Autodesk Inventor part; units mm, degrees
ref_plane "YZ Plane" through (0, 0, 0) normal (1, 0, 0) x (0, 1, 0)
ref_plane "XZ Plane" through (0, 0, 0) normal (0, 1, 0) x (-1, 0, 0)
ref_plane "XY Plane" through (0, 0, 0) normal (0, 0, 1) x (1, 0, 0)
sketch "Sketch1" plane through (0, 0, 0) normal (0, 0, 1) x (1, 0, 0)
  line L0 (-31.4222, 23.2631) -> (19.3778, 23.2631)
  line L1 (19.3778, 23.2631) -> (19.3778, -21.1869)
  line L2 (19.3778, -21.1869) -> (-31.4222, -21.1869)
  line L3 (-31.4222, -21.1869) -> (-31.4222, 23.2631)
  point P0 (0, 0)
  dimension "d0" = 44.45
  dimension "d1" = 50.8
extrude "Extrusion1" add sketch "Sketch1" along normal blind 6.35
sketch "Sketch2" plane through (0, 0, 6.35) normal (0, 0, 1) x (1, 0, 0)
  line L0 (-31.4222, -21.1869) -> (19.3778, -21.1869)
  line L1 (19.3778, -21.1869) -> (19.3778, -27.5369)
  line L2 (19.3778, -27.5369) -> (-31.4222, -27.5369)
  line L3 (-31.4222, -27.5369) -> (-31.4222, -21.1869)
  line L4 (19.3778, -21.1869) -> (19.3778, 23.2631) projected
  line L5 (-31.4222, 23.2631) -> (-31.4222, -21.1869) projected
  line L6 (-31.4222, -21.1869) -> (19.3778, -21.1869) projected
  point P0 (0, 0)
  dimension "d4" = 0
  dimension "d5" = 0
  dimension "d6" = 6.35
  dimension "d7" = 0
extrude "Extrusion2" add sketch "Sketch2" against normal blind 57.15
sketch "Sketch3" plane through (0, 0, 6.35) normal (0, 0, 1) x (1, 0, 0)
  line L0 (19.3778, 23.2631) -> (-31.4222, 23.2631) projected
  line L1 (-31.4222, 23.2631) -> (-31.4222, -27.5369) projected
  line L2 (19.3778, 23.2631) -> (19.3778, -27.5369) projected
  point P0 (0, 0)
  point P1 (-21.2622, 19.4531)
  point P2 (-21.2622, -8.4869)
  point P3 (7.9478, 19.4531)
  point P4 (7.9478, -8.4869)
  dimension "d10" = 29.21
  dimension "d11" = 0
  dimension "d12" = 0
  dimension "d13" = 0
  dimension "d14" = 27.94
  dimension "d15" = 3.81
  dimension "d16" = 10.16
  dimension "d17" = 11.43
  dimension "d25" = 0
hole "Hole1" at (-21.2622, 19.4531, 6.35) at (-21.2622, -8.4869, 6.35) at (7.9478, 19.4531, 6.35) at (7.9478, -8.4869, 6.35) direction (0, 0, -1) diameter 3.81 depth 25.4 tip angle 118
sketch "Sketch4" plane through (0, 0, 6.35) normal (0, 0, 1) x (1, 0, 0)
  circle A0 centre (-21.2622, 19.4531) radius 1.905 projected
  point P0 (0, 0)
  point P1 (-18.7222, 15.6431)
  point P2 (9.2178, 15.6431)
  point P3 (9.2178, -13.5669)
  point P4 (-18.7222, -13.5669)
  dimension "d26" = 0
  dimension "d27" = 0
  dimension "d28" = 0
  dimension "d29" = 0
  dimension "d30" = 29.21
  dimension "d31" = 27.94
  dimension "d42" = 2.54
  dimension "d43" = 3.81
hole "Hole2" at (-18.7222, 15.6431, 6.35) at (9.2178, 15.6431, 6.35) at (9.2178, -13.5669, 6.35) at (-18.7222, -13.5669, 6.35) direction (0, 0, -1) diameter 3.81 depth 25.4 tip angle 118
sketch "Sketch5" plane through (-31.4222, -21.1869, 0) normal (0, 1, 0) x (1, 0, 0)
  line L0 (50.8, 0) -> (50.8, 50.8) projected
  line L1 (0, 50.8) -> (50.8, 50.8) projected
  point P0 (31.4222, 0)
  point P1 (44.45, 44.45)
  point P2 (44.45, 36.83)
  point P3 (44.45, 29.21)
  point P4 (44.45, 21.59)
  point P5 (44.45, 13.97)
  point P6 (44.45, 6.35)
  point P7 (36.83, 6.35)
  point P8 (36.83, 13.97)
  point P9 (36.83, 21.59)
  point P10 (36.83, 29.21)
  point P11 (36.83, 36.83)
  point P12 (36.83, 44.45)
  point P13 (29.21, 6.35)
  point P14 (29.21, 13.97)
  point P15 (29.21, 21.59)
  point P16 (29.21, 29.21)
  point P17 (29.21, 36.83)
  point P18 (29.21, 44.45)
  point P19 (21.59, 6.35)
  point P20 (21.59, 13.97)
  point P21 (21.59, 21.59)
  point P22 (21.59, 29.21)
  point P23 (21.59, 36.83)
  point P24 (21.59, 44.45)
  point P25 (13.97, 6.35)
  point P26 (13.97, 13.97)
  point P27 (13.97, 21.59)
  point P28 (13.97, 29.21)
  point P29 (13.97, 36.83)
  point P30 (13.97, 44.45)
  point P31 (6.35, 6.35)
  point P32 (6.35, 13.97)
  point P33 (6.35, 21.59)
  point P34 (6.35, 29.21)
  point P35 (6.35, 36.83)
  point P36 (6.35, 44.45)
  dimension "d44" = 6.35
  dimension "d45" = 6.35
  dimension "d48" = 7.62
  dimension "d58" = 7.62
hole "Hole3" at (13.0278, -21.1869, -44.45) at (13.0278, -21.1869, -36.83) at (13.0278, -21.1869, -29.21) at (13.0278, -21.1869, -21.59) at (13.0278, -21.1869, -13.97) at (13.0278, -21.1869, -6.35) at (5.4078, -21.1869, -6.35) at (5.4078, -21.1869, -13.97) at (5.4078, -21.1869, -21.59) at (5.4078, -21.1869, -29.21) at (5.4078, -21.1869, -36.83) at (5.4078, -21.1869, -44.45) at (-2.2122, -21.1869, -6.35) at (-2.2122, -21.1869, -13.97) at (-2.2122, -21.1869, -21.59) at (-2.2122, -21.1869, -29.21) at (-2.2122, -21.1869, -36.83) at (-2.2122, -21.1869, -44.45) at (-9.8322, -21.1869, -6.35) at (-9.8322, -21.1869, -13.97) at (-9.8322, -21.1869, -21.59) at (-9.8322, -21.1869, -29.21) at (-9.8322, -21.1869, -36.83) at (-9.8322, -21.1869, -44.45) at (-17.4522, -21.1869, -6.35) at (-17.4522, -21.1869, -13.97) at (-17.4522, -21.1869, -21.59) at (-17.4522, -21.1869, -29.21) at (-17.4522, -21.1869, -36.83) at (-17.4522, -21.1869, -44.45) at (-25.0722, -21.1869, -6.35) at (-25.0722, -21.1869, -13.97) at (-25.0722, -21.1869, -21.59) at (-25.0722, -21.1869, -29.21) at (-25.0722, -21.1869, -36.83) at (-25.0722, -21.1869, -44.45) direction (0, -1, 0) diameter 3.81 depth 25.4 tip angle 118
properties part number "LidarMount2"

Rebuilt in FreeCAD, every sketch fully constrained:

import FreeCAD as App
import Part
import Sketcher

V = App.Vector
Q = App.Units.Quantity

doc = App.newDocument("Part")
params = doc.addObject("Spreadsheet::Sheet", "Params")
for row, (alias, value) in enumerate([
    ("sketch1_width", "2 in"),
    ("sketch1_height", "1.75 in"),
    ("pad1_length", "0.25 in"),
    ("sketch2_height", "0.25 in"),
    ("sketch2_width", "2 in"),
    ("pad2_length", "2.25 in"),
    ("sketch3_diameter", "0.15 in"),
    ("hole_diameter", "0.15 in"),
    ("hole_depth", "1 in"),
    ("sketch4_diameter", "0.15 in"),
    ("hole2_diameter", "0.15 in"),
    ("hole2_depth", "1 in"),
    ("sketch5_diameter", "0.15 in"),
    ("hole3_diameter", "0.15 in"),
    ("hole3_depth", "1 in"),
], start=1):
    params.set(f"A{row}", alias)
    params.set(f"B{row}", "=" + value)
    params.setAlias(f"B{row}", alias)

body = doc.addObject("PartDesign::Body", "Body")

# Sketch on XY plane
sketch1 = doc.addObject("Sketcher::SketchObject", "Sketch")
body.addObject(sketch1)
sketch1.AttachmentSupport = (doc.XY_Plane, [""])
sketch1.MapMode = "FlatFace"
sketch1.addGeometry([
    Part.LineSegment(V(19.3778, 23.2631, 0), V(-31.4222, 23.2631, 0)),
    Part.LineSegment(V(-31.4222, 23.2631, 0), V(-31.4222, -21.1869, 0)),
    Part.LineSegment(V(-31.4222, -21.1869, 0), V(19.3778, -21.1869, 0)),
    Part.LineSegment(V(19.3778, -21.1869, 0), V(19.3778, 23.2631, 0)),
], False)
sketch1.addConstraint([
    Sketcher.Constraint("Coincident", 0, 2, 1, 1),
    Sketcher.Constraint("Coincident", 1, 2, 2, 1),
    Sketcher.Constraint("Coincident", 2, 2, 3, 1),
    Sketcher.Constraint("Coincident", 3, 2, 0, 1),
    Sketcher.Constraint("Horizontal", 0),
    Sketcher.Constraint("Vertical", 1),
    Sketcher.Constraint("Horizontal", 2),
    Sketcher.Constraint("Vertical", 3),
    Sketcher.Constraint("DistanceX", 0, 2, 0, 1, Q("2 in")),
    Sketcher.Constraint("DistanceY", 1, 2, 1, 1, Q("1.75 in")),
    Sketcher.Constraint("DistanceX", 0, 2, -1, 1, Q("1.2371 in")),
    Sketcher.Constraint("DistanceY", -1, 1, 0, 2, Q("23.263 mm")),
])
sketch1.setExpression("Constraints[8]", "Params.sketch1_width")
sketch1.setExpression("Constraints[9]", "Params.sketch1_height")
pad1 = doc.addObject("PartDesign::Pad", "Pad")
body.addObject(pad1)
pad1.Profile = sketch1
pad1.setExpression("Length", "Params.pad1_length")

# Sketch on XY plane
sketch2 = doc.addObject("Sketcher::SketchObject", "Sketch001")
body.addObject(sketch2)
sketch2.AttachmentSupport = (doc.XY_Plane, [""])
sketch2.MapMode = "FlatFace"
sketch2.AttachmentOffset = App.Placement(V(0, 0, 0.25 * 25.4), App.Rotation())
sketch2.addGeometry([
    Part.LineSegment(V(19.3778, -21.1869, 0), V(-31.4222, -21.1869, 0)),
    Part.LineSegment(V(-31.4222, -21.1869, 0), V(-31.4222, -27.5369, 0)),
    Part.LineSegment(V(-31.4222, -27.5369, 0), V(19.3778, -27.5369, 0)),
    Part.LineSegment(V(19.3778, -27.5369, 0), V(19.3778, -21.1869, 0)),
], False)
sketch2.addConstraint([
    Sketcher.Constraint("Coincident", 0, 2, 1, 1),
    Sketcher.Constraint("Coincident", 1, 2, 2, 1),
    Sketcher.Constraint("Coincident", 2, 2, 3, 1),
    Sketcher.Constraint("Coincident", 3, 2, 0, 1),
    Sketcher.Constraint("Horizontal", 0),
    Sketcher.Constraint("Vertical", 1),
    Sketcher.Constraint("Horizontal", 2),
    Sketcher.Constraint("Vertical", 3),
    Sketcher.Constraint("DistanceY", 1, 2, 1, 1, Q("0.25 in")),
    Sketcher.Constraint("DistanceX", 0, 2, 0, 1, Q("2 in")),
    Sketcher.Constraint("DistanceX", 0, 2, -1, 1, Q("1.2371 in")),
    Sketcher.Constraint("DistanceY", 0, 2, -1, 1, Q("21.187 mm")),
])
sketch2.setExpression("Constraints[8]", "Params.sketch2_height")
sketch2.setExpression("Constraints[9]", "Params.sketch2_width")
pad2 = doc.addObject("PartDesign::Pad", "Pad001")
body.addObject(pad2)
pad2.Profile = sketch2
pad2.setExpression("Length", "Params.pad2_length")
pad2.Reversed = True

# Sketch on XY plane
sketch3 = doc.addObject("Sketcher::SketchObject", "Sketch002")
body.addObject(sketch3)
sketch3.AttachmentSupport = (doc.XY_Plane, [""])
sketch3.MapMode = "FlatFace"
sketch3.AttachmentOffset = App.Placement(V(0, 0, 0.25 * 25.4), App.Rotation())
sketch3.addGeometry([
    Part.Circle(V(-21.2622, 19.4531, 0), V(0, 0, 1), 1.905),
    Part.Circle(V(-21.2622, -8.4869, 0), V(0, 0, 1), 1.905),
    Part.Circle(V(7.9478, 19.4531, 0), V(0, 0, 1), 1.905),
    Part.Circle(V(7.9478, -8.4869, 0), V(0, 0, 1), 1.905),
], False)
sketch3.addConstraint([
    Sketcher.Constraint("Equal", 0, 1),
    Sketcher.Constraint("Equal", 1, 2),
    Sketcher.Constraint("Equal", 2, 3),
    Sketcher.Constraint("Horizontal", 0, 3, 2, 3),
    Sketcher.Constraint("Horizontal", 1, 3, 3, 3),
    Sketcher.Constraint("Vertical", 0, 3, 1, 3),
    Sketcher.Constraint("Vertical", 2, 3, 3, 3),
    Sketcher.Constraint("Diameter", 0, Q("0.15 in")),
    Sketcher.Constraint("DistanceY", 1, 3, 0, 3, Q("1.1 in")),
    Sketcher.Constraint("DistanceX", 0, 3, 2, 3, Q("1.15 in")),
    Sketcher.Constraint("DistanceX", 0, 3, -1, 1, Q("0.8371 in")),
    Sketcher.Constraint("DistanceY", -1, 1, 0, 3, Q("19.453 mm")),
])
sketch3.setExpression("Constraints[7]", "Params.sketch3_diameter")
doc.recompute()
hole = doc.addObject("PartDesign::Hole", "Hole")
body.addObject(hole)
hole.Profile = sketch3
hole.ThreadType = "None"
hole.setExpression("Diameter", "Params.hole_diameter")
hole.DepthType = "Dimension"
hole.setExpression("Depth", "Params.hole_depth")
hole.DrillPoint = "Angled"
hole.DrillPointAngle = 118

# Sketch on XY plane
sketch4 = doc.addObject("Sketcher::SketchObject", "Sketch003")
body.addObject(sketch4)
sketch4.AttachmentSupport = (doc.XY_Plane, [""])
sketch4.MapMode = "FlatFace"
sketch4.AttachmentOffset = App.Placement(V(0, 0, 0.25 * 25.4), App.Rotation())
sketch4.addGeometry([
    Part.Circle(V(-18.7222, 15.6431, 0), V(0, 0, 1), 1.905),
    Part.Circle(V(9.2178, 15.6431, 0), V(0, 0, 1), 1.905),
    Part.Circle(V(9.2178, -13.5669, 0), V(0, 0, 1), 1.905),
    Part.Circle(V(-18.7222, -13.5669, 0), V(0, 0, 1), 1.905),
], False)
sketch4.addConstraint([
    Sketcher.Constraint("Equal", 0, 1),
    Sketcher.Constraint("Equal", 1, 2),
    Sketcher.Constraint("Equal", 2, 3),
    Sketcher.Constraint("Horizontal", 0, 3, 1, 3),
    Sketcher.Constraint("Horizontal", 2, 3, 3, 3),
    Sketcher.Constraint("Vertical", 1, 3, 2, 3),
    Sketcher.Constraint("Vertical", 0, 3, 3, 3),
    Sketcher.Constraint("Diameter", 0, Q("0.15 in")),
    Sketcher.Constraint("DistanceX", 0, 3, 1, 3, Q("1.1 in")),
    Sketcher.Constraint("DistanceY", 2, 3, 1, 3, Q("1.15 in")),
    Sketcher.Constraint("DistanceX", 0, 3, -1, 1, Q("0.7371 in")),
    Sketcher.Constraint("DistanceY", -1, 1, 0, 3, Q("15.643 mm")),
])
sketch4.setExpression("Constraints[7]", "Params.sketch4_diameter")
doc.recompute()
hole2 = doc.addObject("PartDesign::Hole", "Hole001")
body.addObject(hole2)
hole2.Profile = sketch4
hole2.ThreadType = "None"
hole2.setExpression("Diameter", "Params.hole2_diameter")
hole2.DepthType = "Dimension"
hole2.setExpression("Depth", "Params.hole2_depth")
hole2.DrillPoint = "Angled"
hole2.DrillPointAngle = 118

# Sketch on XZ plane
sketch5 = doc.addObject("Sketcher::SketchObject", "Sketch004")
body.addObject(sketch5)
sketch5.AttachmentSupport = (doc.XZ_Plane, [""])
sketch5.MapMode = "FlatFace"
sketch5.AttachmentOffset = App.Placement(V(0, 0, 21.1869), App.Rotation())
sketch5.addGeometry([
    Part.Circle(V(13.0278, -44.45, 0), V(0, 0, 1), 1.905),  # 0
    Part.Circle(V(13.0278, -36.83, 0), V(0, 0, 1), 1.905),  # 1
    Part.Circle(V(13.0278, -29.21, 0), V(0, 0, 1), 1.905),  # 2
    Part.Circle(V(13.0278, -21.59, 0), V(0, 0, 1), 1.905),  # 3
    Part.Circle(V(13.0278, -13.97, 0), V(0, 0, 1), 1.905),  # 4
    Part.Circle(V(13.0278, -6.35, 0), V(0, 0, 1), 1.905),  # 5
    Part.Circle(V(5.4078, -6.35, 0), V(0, 0, 1), 1.905),  # 6
    Part.Circle(V(5.4078, -13.97, 0), V(0, 0, 1), 1.905),  # 7
    Part.Circle(V(5.4078, -21.59, 0), V(0, 0, 1), 1.905),  # 8
    Part.Circle(V(5.4078, -29.21, 0), V(0, 0, 1), 1.905),  # 9
    Part.Circle(V(5.4078, -36.83, 0), V(0, 0, 1), 1.905),  # 10
    Part.Circle(V(5.4078, -44.45, 0), V(0, 0, 1), 1.905),  # 11
    Part.Circle(V(-2.2122, -6.35, 0), V(0, 0, 1), 1.905),  # 12
    Part.Circle(V(-2.2122, -13.97, 0), V(0, 0, 1), 1.905),  # 13
    Part.Circle(V(-2.2122, -21.59, 0), V(0, 0, 1), 1.905),  # 14
    Part.Circle(V(-2.2122, -29.21, 0), V(0, 0, 1), 1.905),  # 15
    Part.Circle(V(-2.2122, -36.83, 0), V(0, 0, 1), 1.905),  # 16
    Part.Circle(V(-2.2122, -44.45, 0), V(0, 0, 1), 1.905),  # 17
    Part.Circle(V(-9.8322, -6.35, 0), V(0, 0, 1), 1.905),  # 18
    Part.Circle(V(-9.8322, -13.97, 0), V(0, 0, 1), 1.905),  # 19
    Part.Circle(V(-9.8322, -21.59, 0), V(0, 0, 1), 1.905),  # 20
    Part.Circle(V(-9.8322, -29.21, 0), V(0, 0, 1), 1.905),  # 21
    Part.Circle(V(-9.8322, -36.83, 0), V(0, 0, 1), 1.905),  # 22
    Part.Circle(V(-9.8322, -44.45, 0), V(0, 0, 1), 1.905),  # 23
    Part.Circle(V(-17.4522, -6.35, 0), V(0, 0, 1), 1.905),  # 24
    Part.Circle(V(-17.4522, -13.97, 0), V(0, 0, 1), 1.905),  # 25
    Part.Circle(V(-17.4522, -21.59, 0), V(0, 0, 1), 1.905),  # 26
    Part.Circle(V(-17.4522, -29.21, 0), V(0, 0, 1), 1.905),  # 27
    Part.Circle(V(-17.4522, -36.83, 0), V(0, 0, 1), 1.905),  # 28
    Part.Circle(V(-17.4522, -44.45, 0), V(0, 0, 1), 1.905),  # 29
    Part.Circle(V(-25.0722, -6.35, 0), V(0, 0, 1), 1.905),  # 30
    Part.Circle(V(-25.0722, -13.97, 0), V(0, 0, 1), 1.905),  # 31
    Part.Circle(V(-25.0722, -21.59, 0), V(0, 0, 1), 1.905),  # 32
    Part.Circle(V(-25.0722, -29.21, 0), V(0, 0, 1), 1.905),  # 33
    Part.Circle(V(-25.0722, -36.83, 0), V(0, 0, 1), 1.905),  # 34
    Part.Circle(V(-25.0722, -44.45, 0), V(0, 0, 1), 1.905),  # 35
], False)
sketch5.addConstraint([
    Sketcher.Constraint("Equal", 0, 1),
    Sketcher.Constraint("Equal", 1, 2),
    Sketcher.Constraint("Equal", 2, 3),
    Sketcher.Constraint("Equal", 3, 4),
    Sketcher.Constraint("Equal", 4, 5),
    Sketcher.Constraint("Equal", 5, 6),
    Sketcher.Constraint("Equal", 6, 7),
    Sketcher.Constraint("Equal", 7, 8),
    Sketcher.Constraint("Equal", 8, 9),
    Sketcher.Constraint("Equal", 9, 10),
    Sketcher.Constraint("Equal", 10, 11),
    Sketcher.Constraint("Equal", 11, 12),
    Sketcher.Constraint("Equal", 12, 13),
    Sketcher.Constraint("Equal", 13, 14),
    Sketcher.Constraint("Equal", 14, 15),
    Sketcher.Constraint("Equal", 15, 16),
    Sketcher.Constraint("Equal", 16, 17),
    Sketcher.Constraint("Equal", 17, 18),
    Sketcher.Constraint("Equal", 18, 19),
    Sketcher.Constraint("Equal", 19, 20),
    Sketcher.Constraint("Equal", 20, 21),
    Sketcher.Constraint("Equal", 21, 22),
    Sketcher.Constraint("Equal", 22, 23),
    Sketcher.Constraint("Equal", 23, 24),
    Sketcher.Constraint("Equal", 24, 25),
    Sketcher.Constraint("Equal", 25, 26),
    Sketcher.Constraint("Equal", 26, 27),
    Sketcher.Constraint("Equal", 27, 28),
    Sketcher.Constraint("Equal", 28, 29),
    Sketcher.Constraint("Equal", 29, 30),
    Sketcher.Constraint("Equal", 30, 31),
    Sketcher.Constraint("Equal", 31, 32),
    Sketcher.Constraint("Equal", 32, 33),
    Sketcher.Constraint("Equal", 33, 34),
    Sketcher.Constraint("Equal", 34, 35),
    Sketcher.Constraint("Horizontal", 5, 3, 6, 3),
    Sketcher.Constraint("Horizontal", 4, 3, 7, 3),
    Sketcher.Constraint("Horizontal", 3, 3, 8, 3),
    Sketcher.Constraint("Horizontal", 2, 3, 9, 3),
    Sketcher.Constraint("Horizontal", 1, 3, 10, 3),
    Sketcher.Constraint("Horizontal", 0, 3, 11, 3),
    Sketcher.Constraint("Horizontal", 6, 3, 12, 3),
    Sketcher.Constraint("Horizontal", 7, 3, 13, 3),
    Sketcher.Constraint("Horizontal", 8, 3, 14, 3),
    Sketcher.Constraint("Horizontal", 9, 3, 15, 3),
    Sketcher.Constraint("Horizontal", 10, 3, 16, 3),
    Sketcher.Constraint("Horizontal", 11, 3, 17, 3),
    Sketcher.Constraint("Horizontal", 12, 3, 18, 3),
    Sketcher.Constraint("Horizontal", 13, 3, 19, 3),
    Sketcher.Constraint("Horizontal", 14, 3, 20, 3),
    Sketcher.Constraint("Horizontal", 15, 3, 21, 3),
    Sketcher.Constraint("Horizontal", 16, 3, 22, 3),
    Sketcher.Constraint("Horizontal", 17, 3, 23, 3),
    Sketcher.Constraint("Horizontal", 18, 3, 24, 3),
    Sketcher.Constraint("Horizontal", 19, 3, 25, 3),
    Sketcher.Constraint("Horizontal", 20, 3, 26, 3),
    Sketcher.Constraint("Horizontal", 21, 3, 27, 3),
    Sketcher.Constraint("Horizontal", 22, 3, 28, 3),
    Sketcher.Constraint("Horizontal", 23, 3, 29, 3),
    Sketcher.Constraint("Horizontal", 24, 3, 30, 3),
    Sketcher.Constraint("Horizontal", 25, 3, 31, 3),
    Sketcher.Constraint("Horizontal", 26, 3, 32, 3),
    Sketcher.Constraint("Horizontal", 27, 3, 33, 3),
    Sketcher.Constraint("Horizontal", 28, 3, 34, 3),
    Sketcher.Constraint("Horizontal", 29, 3, 35, 3),
    Sketcher.Constraint("Vertical", 0, 3, 1, 3),
    Sketcher.Constraint("Vertical", 1, 3, 2, 3),
    Sketcher.Constraint("Vertical", 2, 3, 3, 3),
    Sketcher.Constraint("Vertical", 3, 3, 4, 3),
    Sketcher.Constraint("Vertical", 4, 3, 5, 3),
    Sketcher.Constraint("Vertical", 6, 3, 7, 3),
    Sketcher.Constraint("Vertical", 7, 3, 8, 3),
    Sketcher.Constraint("Vertical", 8, 3, 9, 3),
    Sketcher.Constraint("Vertical", 9, 3, 10, 3),
    Sketcher.Constraint("Vertical", 10, 3, 11, 3),
    Sketcher.Constraint("Vertical", 12, 3, 13, 3),
    Sketcher.Constraint("Vertical", 13, 3, 14, 3),
    Sketcher.Constraint("Vertical", 14, 3, 15, 3),
    Sketcher.Constraint("Vertical", 15, 3, 16, 3),
    Sketcher.Constraint("Vertical", 16, 3, 17, 3),
    Sketcher.Constraint("Vertical", 18, 3, 19, 3),
    Sketcher.Constraint("Vertical", 19, 3, 20, 3),
    Sketcher.Constraint("Vertical", 20, 3, 21, 3),
    Sketcher.Constraint("Vertical", 21, 3, 22, 3),
    Sketcher.Constraint("Vertical", 22, 3, 23, 3),
    Sketcher.Constraint("Vertical", 24, 3, 25, 3),
    Sketcher.Constraint("Vertical", 25, 3, 26, 3),
    Sketcher.Constraint("Vertical", 26, 3, 27, 3),
    Sketcher.Constraint("Vertical", 27, 3, 28, 3),
    Sketcher.Constraint("Vertical", 28, 3, 29, 3),
    Sketcher.Constraint("Vertical", 30, 3, 31, 3),
    Sketcher.Constraint("Vertical", 31, 3, 32, 3),
    Sketcher.Constraint("Vertical", 32, 3, 33, 3),
    Sketcher.Constraint("Vertical", 33, 3, 34, 3),
    Sketcher.Constraint("Vertical", 34, 3, 35, 3),
    Sketcher.Constraint("Diameter", 0, Q("0.15 in")),
    Sketcher.Constraint("DistanceY", 0, 3, 1, 3, Q("0.3 in")),
    Sketcher.Constraint("DistanceY", 1, 3, 2, 3, Q("0.3 in")),
    Sketcher.Constraint("DistanceY", 2, 3, 3, 3, Q("0.3 in")),
    Sketcher.Constraint("DistanceY", 3, 3, 4, 3, Q("0.3 in")),
    Sketcher.Constraint("DistanceY", 4, 3, 5, 3, Q("0.3 in")),
    Sketcher.Constraint("DistanceX", 6, 3, 5, 3, Q("0.3 in")),
    Sketcher.Constraint("DistanceX", 12, 3, 6, 3, Q("0.3 in")),
    Sketcher.Constraint("DistanceX", 18, 3, 12, 3, Q("0.3 in")),
    Sketcher.Constraint("DistanceX", 24, 3, 18, 3, Q("0.3 in")),
    Sketcher.Constraint("DistanceX", 30, 3, 24, 3, Q("0.3 in")),
    Sketcher.Constraint("DistanceY", 0, 3, -1, 1, Q("1.75 in")),
    Sketcher.Constraint("DistanceX", -1, 1, 0, 3, Q("0.5129 in")),
])
sketch5.setExpression("Constraints[95]", "Params.sketch5_diameter")
doc.recompute()
hole3 = doc.addObject("PartDesign::Hole", "Hole002")
body.addObject(hole3)
hole3.Profile = sketch5
hole3.ThreadType = "None"
hole3.setExpression("Diameter", "Params.hole3_diameter")
hole3.DepthType = "Dimension"
hole3.setExpression("Depth", "Params.hole3_depth")
hole3.DrillPoint = "Angled"
hole3.DrillPointAngle = 118
hole3.Reversed = True

doc.recompute()
